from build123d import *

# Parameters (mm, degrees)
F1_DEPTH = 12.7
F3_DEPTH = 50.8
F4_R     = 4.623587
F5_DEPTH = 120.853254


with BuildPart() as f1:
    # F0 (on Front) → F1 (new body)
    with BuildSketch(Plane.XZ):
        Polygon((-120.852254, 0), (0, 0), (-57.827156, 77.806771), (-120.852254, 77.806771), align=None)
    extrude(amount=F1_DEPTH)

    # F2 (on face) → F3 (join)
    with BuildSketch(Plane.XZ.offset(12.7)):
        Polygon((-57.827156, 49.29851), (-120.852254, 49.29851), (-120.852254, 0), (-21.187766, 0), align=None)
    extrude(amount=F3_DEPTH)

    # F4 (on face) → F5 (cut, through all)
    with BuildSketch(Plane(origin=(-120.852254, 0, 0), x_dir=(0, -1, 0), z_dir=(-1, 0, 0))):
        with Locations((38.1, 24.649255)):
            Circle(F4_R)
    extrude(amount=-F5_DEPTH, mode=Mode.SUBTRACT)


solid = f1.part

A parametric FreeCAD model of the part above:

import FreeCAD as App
import Part
import Sketcher
Q = App.Units.Quantity

doc = App.newDocument("Part")
body = doc.addObject("PartDesign::Body", "Body")

# Sketch on XZ plane
sketch1 = body.newObject("Sketcher::SketchObject", "Sketch")
sketch1.AttachmentSupport = (doc.getObject("XZ_Plane"), [""])
sketch1.MapMode = "FlatFace"
sketch1.addGeometry([
    Part.LineSegment(App.Vector(-121, 0, 0), App.Vector(0, 0, 0)),
    Part.LineSegment(App.Vector(0, 0, 0), App.Vector(-58, 78, 0)),
    Part.LineSegment(App.Vector(-58, 78, 0), App.Vector(-121, 78, 0)),
    Part.LineSegment(App.Vector(-121, 78, 0), App.Vector(-121, 0, 0)),
], False)
sketch1.addConstraint([
    Sketcher.Constraint("Coincident", 0, 2, 1, 1),
    Sketcher.Constraint("Coincident", 1, 2, 2, 1),
    Sketcher.Constraint("Coincident", 2, 2, 3, 1),
    Sketcher.Constraint("Coincident", 3, 2, 0, 1),
    Sketcher.Constraint("Horizontal", 0),
    Sketcher.Constraint("Horizontal", 2),
    Sketcher.Constraint("Vertical", 3),
    Sketcher.Constraint("Coincident", 0, 2, -1, 1),
    Sketcher.Constraint("DistanceY", 3, 2, 3, 1, 77.806771),
    Sketcher.Constraint("Distance", 1, 96.94263),
    Sketcher.Constraint("DistanceX", 0, 1, 0, 2, 120.852254),
])
pad1 = body.newObject("PartDesign::Pad", "Pad")
pad1.Profile = sketch1
pad1.Length = Q("0.5 in")

# Sketch on XZ plane
sketch2 = body.newObject("Sketcher::SketchObject", "Sketch001")
sketch2.AttachmentSupport = (doc.getObject("XZ_Plane"), [""])
sketch2.MapMode = "FlatFace"
sketch2.AttachmentOffset = App.Placement(App.Vector(0, 0, 0.5 * 25.4), App.Rotation())
sketch2.addGeometry([
    Part.LineSegment(App.Vector(-58, 49, 0), App.Vector(-121, 49, 0)),
    Part.LineSegment(App.Vector(-121, 49, 0), App.Vector(-121, 0, 0)),
    Part.LineSegment(App.Vector(-121, 0, 0), App.Vector(-21, 0, 0)),
    Part.LineSegment(App.Vector(-21, 0, 0), App.Vector(-58, 49, 0)),
], False)
sketch2.addConstraint([
    Sketcher.Constraint("Coincident", 0, 2, 1, 1),
    Sketcher.Constraint("Coincident", 1, 2, 2, 1),
    Sketcher.Constraint("Coincident", 2, 2, 3, 1),
    Sketcher.Constraint("Coincident", 3, 2, 0, 1),
    Sketcher.Constraint("Horizontal", 0),
    Sketcher.Constraint("Vertical", 1),
    Sketcher.Constraint("Horizontal", 2),
    Sketcher.Constraint("PointOnObject", 1, 2, -1),
    Sketcher.Constraint("DistanceX", 2, 1, 2, 2, 99.664488),
    Sketcher.Constraint("DistanceY", 1, 2, 1, 1, 49.29851),
    Sketcher.Constraint("DistanceX", 0, 2, 0, 1, 63.025098),
    Sketcher.Constraint("DistanceX", 0, 2, -1, 1, 120.852254),
])
pad2 = body.newObject("PartDesign::Pad", "Pad001")
pad2.Profile = sketch2
pad2.Length = Q("2 in")

# Sketch on YZ plane
sketch3 = body.newObject("Sketcher::SketchObject", "Sketch002")
sketch3.AttachmentSupport = (doc.getObject("YZ_Plane"), [""])
sketch3.MapMode = "FlatFace"
sketch3.AttachmentOffset = App.Placement(App.Vector(0, 0, -120.852254), App.Rotation())
sketch3.addGeometry(Part.Circle(App.Vector(-38.1, 24.6, 0), App.Vector(0, 0, 1), 4.6), False)
sketch3.addConstraint([
    Sketcher.Constraint("DistanceX", 0, 3, -1, 1, Q("1.5 in")),
    Sketcher.Constraint("Diameter", 0, 9.247174),
    Sketcher.Constraint("DistanceY", -1, 1, 0, 3, 24.649255),
])
pocket1 = body.newObject("PartDesign::Pocket", "Pocket")
pocket1.Profile = sketch3
pocket1.Type = "ThroughAll"
pocket1.Reversed = True

doc.recompute()
